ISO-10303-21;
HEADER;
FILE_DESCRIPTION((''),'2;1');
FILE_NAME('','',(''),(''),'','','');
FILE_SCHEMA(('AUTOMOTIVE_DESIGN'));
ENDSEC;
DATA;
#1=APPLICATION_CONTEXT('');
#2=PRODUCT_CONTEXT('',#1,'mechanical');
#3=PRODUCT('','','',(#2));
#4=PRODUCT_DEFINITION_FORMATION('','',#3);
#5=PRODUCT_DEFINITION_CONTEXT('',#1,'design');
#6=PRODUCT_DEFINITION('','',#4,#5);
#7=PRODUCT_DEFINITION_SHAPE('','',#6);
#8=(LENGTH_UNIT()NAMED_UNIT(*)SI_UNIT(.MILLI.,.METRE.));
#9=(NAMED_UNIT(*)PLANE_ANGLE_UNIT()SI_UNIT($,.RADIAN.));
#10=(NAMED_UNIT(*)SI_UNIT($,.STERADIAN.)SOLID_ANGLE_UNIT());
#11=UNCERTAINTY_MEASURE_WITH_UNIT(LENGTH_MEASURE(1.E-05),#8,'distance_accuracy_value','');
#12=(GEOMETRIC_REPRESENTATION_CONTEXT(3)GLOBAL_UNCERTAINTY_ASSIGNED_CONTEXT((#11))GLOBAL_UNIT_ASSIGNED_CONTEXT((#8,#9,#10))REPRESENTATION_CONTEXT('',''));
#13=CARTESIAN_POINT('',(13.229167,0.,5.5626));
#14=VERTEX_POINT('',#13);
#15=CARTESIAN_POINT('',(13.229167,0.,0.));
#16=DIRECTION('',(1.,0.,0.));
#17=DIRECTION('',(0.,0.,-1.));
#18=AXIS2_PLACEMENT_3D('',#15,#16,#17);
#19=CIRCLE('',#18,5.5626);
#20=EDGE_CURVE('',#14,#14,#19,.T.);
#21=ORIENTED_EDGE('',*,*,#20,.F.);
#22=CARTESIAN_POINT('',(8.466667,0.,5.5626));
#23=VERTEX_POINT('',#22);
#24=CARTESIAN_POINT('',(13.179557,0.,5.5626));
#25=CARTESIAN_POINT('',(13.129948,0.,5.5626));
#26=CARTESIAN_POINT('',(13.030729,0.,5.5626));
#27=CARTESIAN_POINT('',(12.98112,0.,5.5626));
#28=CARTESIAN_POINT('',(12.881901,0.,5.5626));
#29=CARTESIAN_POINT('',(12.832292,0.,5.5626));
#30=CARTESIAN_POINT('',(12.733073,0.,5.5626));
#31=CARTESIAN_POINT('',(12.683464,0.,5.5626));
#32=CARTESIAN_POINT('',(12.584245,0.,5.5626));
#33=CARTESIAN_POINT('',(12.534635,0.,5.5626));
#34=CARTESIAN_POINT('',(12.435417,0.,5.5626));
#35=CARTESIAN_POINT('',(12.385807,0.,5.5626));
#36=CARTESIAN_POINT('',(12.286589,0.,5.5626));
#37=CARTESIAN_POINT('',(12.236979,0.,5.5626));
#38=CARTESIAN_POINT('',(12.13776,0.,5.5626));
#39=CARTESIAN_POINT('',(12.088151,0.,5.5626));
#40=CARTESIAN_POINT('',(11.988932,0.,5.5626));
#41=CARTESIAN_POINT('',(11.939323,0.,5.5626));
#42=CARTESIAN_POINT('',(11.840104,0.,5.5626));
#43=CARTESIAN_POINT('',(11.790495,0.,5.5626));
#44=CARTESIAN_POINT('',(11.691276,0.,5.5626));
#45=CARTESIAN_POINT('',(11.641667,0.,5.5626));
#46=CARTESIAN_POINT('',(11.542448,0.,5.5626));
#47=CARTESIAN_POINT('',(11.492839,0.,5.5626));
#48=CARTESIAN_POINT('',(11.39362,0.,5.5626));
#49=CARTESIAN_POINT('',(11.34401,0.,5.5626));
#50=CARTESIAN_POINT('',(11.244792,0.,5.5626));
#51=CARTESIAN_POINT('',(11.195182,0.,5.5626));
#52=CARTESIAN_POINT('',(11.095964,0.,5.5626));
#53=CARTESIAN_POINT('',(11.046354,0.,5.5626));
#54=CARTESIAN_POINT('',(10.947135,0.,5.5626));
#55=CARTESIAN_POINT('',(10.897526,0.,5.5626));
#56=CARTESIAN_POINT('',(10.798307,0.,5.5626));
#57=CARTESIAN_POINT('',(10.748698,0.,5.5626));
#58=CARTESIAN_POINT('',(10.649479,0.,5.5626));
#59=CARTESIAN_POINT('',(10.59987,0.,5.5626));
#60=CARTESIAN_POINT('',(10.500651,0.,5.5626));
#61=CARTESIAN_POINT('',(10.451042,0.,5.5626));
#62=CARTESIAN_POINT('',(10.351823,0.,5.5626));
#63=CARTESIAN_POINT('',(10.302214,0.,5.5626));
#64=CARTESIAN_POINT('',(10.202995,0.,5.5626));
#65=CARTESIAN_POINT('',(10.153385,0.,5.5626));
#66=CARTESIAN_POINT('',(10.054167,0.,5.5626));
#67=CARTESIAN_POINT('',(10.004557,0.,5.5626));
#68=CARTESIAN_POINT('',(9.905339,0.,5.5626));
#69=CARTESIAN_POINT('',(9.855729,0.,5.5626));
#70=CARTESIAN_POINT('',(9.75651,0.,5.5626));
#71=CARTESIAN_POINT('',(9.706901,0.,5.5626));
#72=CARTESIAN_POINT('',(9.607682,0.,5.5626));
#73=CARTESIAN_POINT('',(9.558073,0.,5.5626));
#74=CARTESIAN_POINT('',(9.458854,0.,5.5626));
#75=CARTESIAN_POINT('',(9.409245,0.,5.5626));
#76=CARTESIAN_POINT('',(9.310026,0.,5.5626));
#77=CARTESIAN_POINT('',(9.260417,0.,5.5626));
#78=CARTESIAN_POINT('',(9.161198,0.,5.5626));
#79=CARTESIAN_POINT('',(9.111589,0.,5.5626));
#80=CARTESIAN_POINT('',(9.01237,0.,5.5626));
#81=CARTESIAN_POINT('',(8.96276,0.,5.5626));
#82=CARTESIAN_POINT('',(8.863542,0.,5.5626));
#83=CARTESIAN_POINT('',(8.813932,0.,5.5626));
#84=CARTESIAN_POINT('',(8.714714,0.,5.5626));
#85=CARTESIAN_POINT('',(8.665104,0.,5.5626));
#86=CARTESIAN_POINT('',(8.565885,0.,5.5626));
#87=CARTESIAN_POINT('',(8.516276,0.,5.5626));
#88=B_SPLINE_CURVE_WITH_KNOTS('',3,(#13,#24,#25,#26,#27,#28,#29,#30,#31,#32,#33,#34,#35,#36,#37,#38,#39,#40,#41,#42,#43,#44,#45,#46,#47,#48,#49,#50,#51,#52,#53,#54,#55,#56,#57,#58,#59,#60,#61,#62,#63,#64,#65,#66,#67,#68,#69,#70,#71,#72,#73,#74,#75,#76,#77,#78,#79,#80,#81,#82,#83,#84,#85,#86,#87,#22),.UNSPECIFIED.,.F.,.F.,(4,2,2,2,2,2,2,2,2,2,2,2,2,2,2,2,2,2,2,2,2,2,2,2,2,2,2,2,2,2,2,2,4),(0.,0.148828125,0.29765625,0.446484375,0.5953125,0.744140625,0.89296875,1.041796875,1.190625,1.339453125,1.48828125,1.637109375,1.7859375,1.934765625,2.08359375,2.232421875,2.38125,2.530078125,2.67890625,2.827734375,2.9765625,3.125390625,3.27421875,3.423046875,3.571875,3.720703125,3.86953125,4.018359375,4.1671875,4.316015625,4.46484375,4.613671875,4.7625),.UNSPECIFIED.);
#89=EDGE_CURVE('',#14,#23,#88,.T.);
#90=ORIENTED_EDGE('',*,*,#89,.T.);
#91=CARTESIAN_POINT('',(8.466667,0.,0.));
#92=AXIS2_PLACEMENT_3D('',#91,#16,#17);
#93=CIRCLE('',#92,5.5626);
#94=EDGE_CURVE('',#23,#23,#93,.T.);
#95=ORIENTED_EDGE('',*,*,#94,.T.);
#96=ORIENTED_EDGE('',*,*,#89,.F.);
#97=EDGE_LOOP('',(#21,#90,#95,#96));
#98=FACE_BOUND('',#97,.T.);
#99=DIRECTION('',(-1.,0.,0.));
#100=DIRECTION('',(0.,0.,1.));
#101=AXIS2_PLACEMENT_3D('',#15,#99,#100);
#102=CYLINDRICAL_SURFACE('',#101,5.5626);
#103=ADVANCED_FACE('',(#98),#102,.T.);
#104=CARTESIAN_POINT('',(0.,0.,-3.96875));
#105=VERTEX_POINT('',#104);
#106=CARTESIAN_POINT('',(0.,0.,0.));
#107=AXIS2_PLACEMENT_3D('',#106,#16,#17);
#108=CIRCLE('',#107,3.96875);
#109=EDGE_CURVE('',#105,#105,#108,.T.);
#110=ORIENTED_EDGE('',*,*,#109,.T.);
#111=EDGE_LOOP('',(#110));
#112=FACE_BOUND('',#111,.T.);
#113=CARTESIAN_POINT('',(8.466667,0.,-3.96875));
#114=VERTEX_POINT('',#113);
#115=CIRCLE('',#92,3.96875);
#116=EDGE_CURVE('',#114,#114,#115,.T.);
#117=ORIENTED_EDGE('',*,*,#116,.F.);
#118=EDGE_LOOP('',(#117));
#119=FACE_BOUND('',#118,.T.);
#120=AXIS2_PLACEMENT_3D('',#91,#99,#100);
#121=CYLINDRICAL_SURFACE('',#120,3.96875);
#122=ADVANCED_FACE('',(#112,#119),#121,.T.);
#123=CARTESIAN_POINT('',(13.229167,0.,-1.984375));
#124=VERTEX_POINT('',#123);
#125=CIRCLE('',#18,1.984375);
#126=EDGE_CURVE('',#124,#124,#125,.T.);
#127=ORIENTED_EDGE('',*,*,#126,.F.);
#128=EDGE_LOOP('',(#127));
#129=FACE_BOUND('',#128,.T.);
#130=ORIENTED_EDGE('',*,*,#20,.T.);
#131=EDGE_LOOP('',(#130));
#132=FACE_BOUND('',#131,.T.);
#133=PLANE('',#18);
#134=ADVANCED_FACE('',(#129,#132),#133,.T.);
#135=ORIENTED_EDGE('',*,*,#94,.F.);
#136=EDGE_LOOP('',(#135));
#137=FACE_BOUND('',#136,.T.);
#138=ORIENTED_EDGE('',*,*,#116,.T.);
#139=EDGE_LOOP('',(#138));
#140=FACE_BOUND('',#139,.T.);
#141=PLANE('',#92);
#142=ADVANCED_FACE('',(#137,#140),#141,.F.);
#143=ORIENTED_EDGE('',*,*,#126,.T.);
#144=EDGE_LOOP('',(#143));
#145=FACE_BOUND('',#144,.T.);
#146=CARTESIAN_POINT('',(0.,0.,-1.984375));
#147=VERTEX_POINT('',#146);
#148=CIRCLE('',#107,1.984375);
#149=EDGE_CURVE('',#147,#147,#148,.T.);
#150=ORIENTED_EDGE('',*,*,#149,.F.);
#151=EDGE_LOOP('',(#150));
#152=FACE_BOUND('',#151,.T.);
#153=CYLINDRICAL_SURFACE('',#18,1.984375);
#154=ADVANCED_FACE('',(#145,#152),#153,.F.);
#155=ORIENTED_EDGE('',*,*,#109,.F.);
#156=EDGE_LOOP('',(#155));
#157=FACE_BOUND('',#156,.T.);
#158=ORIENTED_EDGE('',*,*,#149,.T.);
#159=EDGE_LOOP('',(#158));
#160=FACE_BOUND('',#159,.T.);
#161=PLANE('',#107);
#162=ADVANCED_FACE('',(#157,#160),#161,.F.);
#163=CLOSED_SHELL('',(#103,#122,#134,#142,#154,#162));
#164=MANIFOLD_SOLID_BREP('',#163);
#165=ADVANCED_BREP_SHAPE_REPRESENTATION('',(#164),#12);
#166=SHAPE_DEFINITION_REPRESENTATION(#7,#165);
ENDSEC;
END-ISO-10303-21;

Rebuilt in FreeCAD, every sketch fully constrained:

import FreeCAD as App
import Part
import Sketcher
Q = App.Units.Quantity

doc = App.newDocument("Part")
body = doc.addObject("PartDesign::Body", "Body")

# Sketch on YZ plane
sketch1 = doc.addObject("Sketcher::SketchObject", "Sketch")
body.addObject(sketch1)
sketch1.AttachmentSupport = (doc.YZ_Plane, [""])
sketch1.MapMode = "FlatFace"
sketch1.addGeometry(Part.Circle(App.Vector(0, 0, 0), App.Vector(0, 0, 1), 4), False)
sketch1.addConstraint([
    Sketcher.Constraint("Coincident", 0, 3, -1, 1),
    Sketcher.Constraint("Diameter", 0, Q("0.3125 in")),
])
pad1 = doc.addObject("PartDesign::Pad", "Pad")
body.addObject(pad1)
pad1.Profile = sketch1
pad1.Length = 8.466667

# Sketch on YZ plane
sketch2 = doc.addObject("Sketcher::SketchObject", "Sketch001")
body.addObject(sketch2)
sketch2.AttachmentSupport = (doc.YZ_Plane, [""])
sketch2.MapMode = "FlatFace"
sketch2.AttachmentOffset = App.Placement(App.Vector(0, 0, 8.466667), App.Rotation())
sketch2.addGeometry(Part.Circle(App.Vector(0, 0, 0), App.Vector(0, 0, 1), 6), False)
sketch2.addConstraint([
    Sketcher.Constraint("Coincident", 0, 3, -1, 1),
    Sketcher.Constraint("Diameter", 0, Q("0.438 in")),
])
pad2 = doc.addObject("PartDesign::Pad", "Pad001")
body.addObject(pad2)
pad2.Profile = sketch2
pad2.Length = Q("0.1875 in")

# Sketch on YZ plane
sketch3 = doc.addObject("Sketcher::SketchObject", "Sketch002")
body.addObject(sketch3)
sketch3.AttachmentSupport = (doc.YZ_Plane, [""])
sketch3.MapMode = "FlatFace"
sketch3.AttachmentOffset = App.Placement(App.Vector(0, 0, 13.229167), App.Rotation())
sketch3.addGeometry(Part.Circle(App.Vector(0, 0, 0), App.Vector(0, 0, 1), 2), False)
sketch3.addConstraint([
    Sketcher.Constraint("Coincident", 0, 3, -1, 1),
    Sketcher.Constraint("Diameter", 0, Q("0.15625 in")),
])
doc.recompute()
hole = doc.addObject("PartDesign::Hole", "Hole")
body.addObject(hole)
hole.Profile = sketch3
hole.ThreadType = "None"
hole.Diameter = Q("0.15625 in")
hole.DepthType = "Dimension"
hole.Depth = Q("2.76 in")
hole.DrillPoint = "Angled"
hole.DrillPointAngle = 118

doc.recompute()
